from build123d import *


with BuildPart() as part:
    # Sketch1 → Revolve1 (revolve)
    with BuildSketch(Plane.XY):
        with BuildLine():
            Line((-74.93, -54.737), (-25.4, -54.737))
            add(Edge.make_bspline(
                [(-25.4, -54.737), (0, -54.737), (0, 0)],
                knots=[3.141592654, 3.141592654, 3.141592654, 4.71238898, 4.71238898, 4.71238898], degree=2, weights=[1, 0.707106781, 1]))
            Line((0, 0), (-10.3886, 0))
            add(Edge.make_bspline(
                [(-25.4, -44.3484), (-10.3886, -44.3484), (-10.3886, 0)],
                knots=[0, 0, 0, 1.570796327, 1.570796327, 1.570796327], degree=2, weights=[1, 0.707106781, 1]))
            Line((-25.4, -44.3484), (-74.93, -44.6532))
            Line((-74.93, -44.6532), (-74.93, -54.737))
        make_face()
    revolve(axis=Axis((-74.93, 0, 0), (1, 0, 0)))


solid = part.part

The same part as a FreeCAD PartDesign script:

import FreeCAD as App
import Part
import Sketcher
from FreeCAD import Vector
Q = App.Units.Quantity

doc = App.newDocument("Part")
body = doc.addObject("PartDesign::Body", "Body")

# Sketch on XY plane
sketch1 = doc.addObject("Sketcher::SketchObject", "Sketch")
body.addObject(sketch1)
sketch1.AttachmentSupport = (doc.XY_Plane, [""])
sketch1.MapMode = "FlatFace"
sketch1.addGeometry([
    Part.LineSegment(Vector(-74.93, -54.737, 0), Vector(-25.4, -54.737, 0)),  # 0
    Part.BSplineCurve([Vector(-25.4, -54.737, 0), Vector(0, -54.737, 0), Vector(0, 0, 0)], [3, 3], [3.141592654, 4.71238898], False, 2, [1, 0.707106781, 1], False),  # 1
    Part.LineSegment(Vector(0, 0, 0), Vector(-10.3886, 0, 0)),  # 2
    Part.BSplineCurve([Vector(-25.4, -44.3484, 0), Vector(-10.3886, -44.3484, 0), Vector(-10.3886, 0, 0)], [3, 3], [0, 1.570796327], False, 2, [1, 0.707106781, 1], False),  # 3
    Part.LineSegment(Vector(-25.4, -44.3484, 0), Vector(-74.93, -44.6532, 0)),  # 4
    Part.LineSegment(Vector(-74.93, -44.6532, 0), Vector(-74.93, -54.737, 0)),  # 5
], False)
sketch1.addConstraint([
    Sketcher.Constraint("Block", 1),
    Sketcher.Constraint("Block", 3),
    Sketcher.Constraint("Coincident", 0, 2, 1, 1),
    Sketcher.Constraint("Coincident", 1, 2, 2, 1),
    Sketcher.Constraint("Coincident", 2, 2, 3, 2),
    Sketcher.Constraint("Coincident", 3, 1, 4, 1),
    Sketcher.Constraint("Coincident", 4, 2, 5, 1),
    Sketcher.Constraint("Coincident", 5, 2, 0, 1),
    Sketcher.Constraint("Horizontal", 0),
    Sketcher.Constraint("Vertical", 5),
    Sketcher.Constraint("DistanceX", 0, 1, 0, 2, Q("1.95 in")),
    Sketcher.Constraint("DistanceY", 5, 2, 5, 1, Q("0.397 in")),
])
revolution = doc.addObject("PartDesign::Revolution", "Revolution")
body.addObject(revolution)
revolution.Profile = sketch1
revolution.ReferenceAxis = (sketch1, ["H_Axis"])
revolution.Angle = 360

doc.recompute()
